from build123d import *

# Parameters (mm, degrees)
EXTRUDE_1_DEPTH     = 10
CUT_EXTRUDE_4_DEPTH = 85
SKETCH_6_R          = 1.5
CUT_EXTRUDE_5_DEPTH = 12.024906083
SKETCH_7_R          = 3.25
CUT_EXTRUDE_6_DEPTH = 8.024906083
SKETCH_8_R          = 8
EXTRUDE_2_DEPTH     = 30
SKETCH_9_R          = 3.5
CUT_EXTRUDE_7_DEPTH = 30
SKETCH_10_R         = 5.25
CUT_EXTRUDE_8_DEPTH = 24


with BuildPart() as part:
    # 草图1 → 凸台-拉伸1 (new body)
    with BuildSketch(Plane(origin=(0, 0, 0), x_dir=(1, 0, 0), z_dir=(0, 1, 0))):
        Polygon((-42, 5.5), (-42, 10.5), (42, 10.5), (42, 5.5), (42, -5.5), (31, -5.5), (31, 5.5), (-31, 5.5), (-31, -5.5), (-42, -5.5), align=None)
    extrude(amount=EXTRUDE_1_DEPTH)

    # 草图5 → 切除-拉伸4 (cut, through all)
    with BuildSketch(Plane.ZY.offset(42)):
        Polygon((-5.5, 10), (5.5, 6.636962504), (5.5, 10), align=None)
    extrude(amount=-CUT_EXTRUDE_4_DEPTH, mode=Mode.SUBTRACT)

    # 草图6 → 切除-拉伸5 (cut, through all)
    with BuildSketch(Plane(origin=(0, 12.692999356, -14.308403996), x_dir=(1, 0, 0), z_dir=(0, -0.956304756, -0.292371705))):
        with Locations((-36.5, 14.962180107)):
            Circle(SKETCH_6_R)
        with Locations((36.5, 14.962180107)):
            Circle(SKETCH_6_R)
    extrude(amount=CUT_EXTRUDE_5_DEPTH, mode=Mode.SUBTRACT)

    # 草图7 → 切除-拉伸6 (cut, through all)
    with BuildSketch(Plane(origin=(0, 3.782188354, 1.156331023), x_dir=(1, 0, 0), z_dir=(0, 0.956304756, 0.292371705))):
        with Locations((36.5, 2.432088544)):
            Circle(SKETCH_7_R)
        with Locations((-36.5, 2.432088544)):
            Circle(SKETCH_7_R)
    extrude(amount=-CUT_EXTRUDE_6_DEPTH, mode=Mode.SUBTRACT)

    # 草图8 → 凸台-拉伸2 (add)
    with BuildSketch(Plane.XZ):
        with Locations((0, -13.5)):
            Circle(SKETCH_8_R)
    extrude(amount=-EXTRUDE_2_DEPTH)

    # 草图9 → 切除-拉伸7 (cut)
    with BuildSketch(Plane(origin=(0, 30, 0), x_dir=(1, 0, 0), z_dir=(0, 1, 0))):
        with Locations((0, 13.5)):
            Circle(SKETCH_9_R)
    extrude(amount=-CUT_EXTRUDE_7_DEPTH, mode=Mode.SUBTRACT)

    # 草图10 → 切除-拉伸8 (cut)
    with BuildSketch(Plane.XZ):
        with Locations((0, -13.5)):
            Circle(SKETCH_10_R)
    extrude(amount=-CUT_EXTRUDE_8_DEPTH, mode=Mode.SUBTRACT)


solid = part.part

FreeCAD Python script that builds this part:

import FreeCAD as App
import Part
import Sketcher
from FreeCAD import Vector
Q = App.Units.Quantity


def add_polygon(sketch, points):
    """Adds a closed chain of lines whose ends are joined by coincident constraints."""
    first, n = sketch.GeometryCount, len(points)
    for a, b in zip(points, points[1:] + points[:1]):
        sketch.addGeometry(Part.LineSegment(App.Vector(*a, 0), App.Vector(*b, 0)), False)
    for i in range(n):
        sketch.addConstraint(Sketcher.Constraint("Coincident", first + i, 2, first + (i + 1) % n, 1))

doc = App.newDocument("Part")
body = doc.addObject("PartDesign::Body", "Body")

# Sketch on XZ plane
sketch1 = body.newObject("Sketcher::SketchObject", "Sketch")
sketch1.AttachmentSupport = (doc.getObject("XZ_Plane"), [""])
sketch1.MapMode = "FlatFace"
add_polygon(sketch1, [(-42, -10.5), (-42, 5.5), (-31, 5.5), (-31, -5.5), (31, -5.5), (31, 5.5), (42, 5.5), (42, -10.5)])  # lines 0-7
sketch1.addConstraint([
    Sketcher.Constraint("Vertical", 0),
    Sketcher.Constraint("Horizontal", 1),
    Sketcher.Constraint("Vertical", 2),
    Sketcher.Constraint("Horizontal", 3),
    Sketcher.Constraint("Vertical", 4),
    Sketcher.Constraint("Horizontal", 5),
    Sketcher.Constraint("Vertical", 6),
    Sketcher.Constraint("Horizontal", 7),
    Sketcher.Constraint("Symmetric", 1, 2, 3, 2, -1, 1),
    Sketcher.Constraint("Symmetric", 0, 2, 5, 2, -2),
    Sketcher.Constraint("Equal", 5, 2),
    Sketcher.Constraint("DistanceX", 1, 1, 1, 2, 11.0),
    Sketcher.Constraint("DistanceX", 3, 1, 3, 2, 62.0),
    Sketcher.Constraint("DistanceY", 0, 1, 0, 2, 16.0),
])
pad1 = body.newObject("PartDesign::Pad", "Pad")
pad1.Profile = sketch1
pad1.Length = 10
pad1.Reversed = True

# Sketch on YZ plane
sketch2 = body.newObject("Sketcher::SketchObject", "Sketch001")
sketch2.AttachmentSupport = (doc.getObject("YZ_Plane"), [""])
sketch2.MapMode = "FlatFace"
sketch2.AttachmentOffset = App.Placement(Vector(0, 0, -42), App.Rotation())
add_polygon(sketch2, [(10, -5.5), (6.636963, 5.5), (10, 5.5)])  # lines 0-2
sketch2.addConstraint([
    Sketcher.Constraint("Horizontal", 1),
    Sketcher.Constraint("Vertical", 2),
    Sketcher.Constraint("DistanceY", 2, 2, 2, 1, 11.0),
    Sketcher.Constraint("Angle", 0, Q("107 deg")),
    Sketcher.Constraint("DistanceX", -1, 1, 1, 2, 10.0),
    Sketcher.Constraint("DistanceY", -1, 1, 0, 2, 5.5),
])
pocket1 = body.newObject("PartDesign::Pocket", "Pocket")
pocket1.Profile = sketch2
pocket1.Type = "ThroughAll"
pocket1.Reversed = True

# Sketch on an angled plane
sketch3 = body.newObject("Sketcher::SketchObject", "Sketch002")
sketch3.Placement = App.Placement(Vector(0, 12.692999, -14.308404), App.Rotation(Vector(1, 0, 0), Vector(0, -0.292371705, 0.956304756), Vector(0, -0.956304756, -0.292371705), "ZXY"))
sketch3.addGeometry([
    Part.Circle(Vector(-36.5, 14.96218, 0), Vector(0, 0, 1), 1.5),
    Part.Circle(Vector(36.5, 14.96218, 0), Vector(0, 0, 1), 1.5),
], False)
sketch3.addConstraint([
    Sketcher.Constraint("Equal", 0, 1),
    Sketcher.Constraint("Symmetric", 0, 3, 1, 3, -2),
    Sketcher.Constraint("Diameter", 0, 3.0),
    Sketcher.Constraint("DistanceX", 0, 3, 1, 3, 73.0),
    Sketcher.Constraint("DistanceY", -1, 1, 0, 3, 14.96218),
])
pocket2 = body.newObject("PartDesign::Pocket", "Pocket001")
pocket2.Profile = sketch3
pocket2.Type = "ThroughAll"
pocket2.Reversed = True

# Sketch on an angled plane
sketch4 = body.newObject("Sketcher::SketchObject", "Sketch003")
sketch4.Placement = App.Placement(Vector(0, 3.782188, 1.156331), App.Rotation(Vector(1, 0, 0), Vector(0, 0.292371705, -0.956304756), Vector(0, 0.956304756, 0.292371705), "ZXY"))
sketch4.addGeometry([
    Part.Circle(Vector(36.5, 2.432089, 0), Vector(0, 0, 1), 3.25),
    Part.Circle(Vector(-36.5, 2.432089, 0), Vector(0, 0, 1), 3.25),
], False)
sketch4.addConstraint([
    Sketcher.Constraint("Equal", 0, 1),
    Sketcher.Constraint("Symmetric", 0, 3, 1, 3, -2),
    Sketcher.Constraint("Diameter", 0, 6.5),
    Sketcher.Constraint("DistanceX", 1, 3, 0, 3, 73.0),
    Sketcher.Constraint("DistanceY", -1, 1, 0, 3, 2.432089),
])
pocket3 = body.newObject("PartDesign::Pocket", "Pocket002")
pocket3.Profile = sketch4
pocket3.Type = "ThroughAll"

# Sketch on XZ plane
sketch5 = body.newObject("Sketcher::SketchObject", "Sketch004")
sketch5.AttachmentSupport = (doc.getObject("XZ_Plane"), [""])
sketch5.MapMode = "FlatFace"
sketch5.addGeometry(Part.Circle(Vector(0, -13.5, 0), Vector(0, 0, 1), 8), False)
sketch5.addConstraint([
    Sketcher.Constraint("PointOnObject", 0, 3, -2),
    Sketcher.Constraint("Diameter", 0, 16.0),
    Sketcher.Constraint("DistanceY", 0, 3, -1, 1, 13.5),
])
pad2 = body.newObject("PartDesign::Pad", "Pad001")
pad2.Profile = sketch5
pad2.Length = 30
pad2.Reversed = True

# Sketch on XZ plane
sketch6 = body.newObject("Sketcher::SketchObject", "Sketch005")
sketch6.AttachmentSupport = (doc.getObject("XZ_Plane"), [""])
sketch6.MapMode = "FlatFace"
sketch6.AttachmentOffset = App.Placement(Vector(0, 0, -30), App.Rotation())
sketch6.addGeometry(Part.Circle(Vector(0, -13.5, 0), Vector(0, 0, 1), 3.5), False)
sketch6.addConstraint([
    Sketcher.Constraint("PointOnObject", 0, 3, -2),
    Sketcher.Constraint("Diameter", 0, 7.0),
    Sketcher.Constraint("DistanceY", 0, 3, -1, 1, 13.5),
])
pocket4 = body.newObject("PartDesign::Pocket", "Pocket003")
pocket4.Profile = sketch6
pocket4.Length = 30
pocket4.Reversed = True

# Sketch on XZ plane
sketch7 = body.newObject("Sketcher::SketchObject", "Sketch006")
sketch7.AttachmentSupport = (doc.getObject("XZ_Plane"), [""])
sketch7.MapMode = "FlatFace"
sketch7.addGeometry(Part.Circle(Vector(0, -13.5, 0), Vector(0, 0, 1), 5.25), False)
sketch7.addConstraint([
    Sketcher.Constraint("PointOnObject", 0, 3, -2),
    Sketcher.Constraint("Diameter", 0, 10.5),
    Sketcher.Constraint("DistanceY", 0, 3, -1, 1, 13.5),
])
pocket5 = body.newObject("PartDesign::Pocket", "Pocket004")
pocket5.Profile = sketch7
pocket5.Length = 24

doc.recompute()
